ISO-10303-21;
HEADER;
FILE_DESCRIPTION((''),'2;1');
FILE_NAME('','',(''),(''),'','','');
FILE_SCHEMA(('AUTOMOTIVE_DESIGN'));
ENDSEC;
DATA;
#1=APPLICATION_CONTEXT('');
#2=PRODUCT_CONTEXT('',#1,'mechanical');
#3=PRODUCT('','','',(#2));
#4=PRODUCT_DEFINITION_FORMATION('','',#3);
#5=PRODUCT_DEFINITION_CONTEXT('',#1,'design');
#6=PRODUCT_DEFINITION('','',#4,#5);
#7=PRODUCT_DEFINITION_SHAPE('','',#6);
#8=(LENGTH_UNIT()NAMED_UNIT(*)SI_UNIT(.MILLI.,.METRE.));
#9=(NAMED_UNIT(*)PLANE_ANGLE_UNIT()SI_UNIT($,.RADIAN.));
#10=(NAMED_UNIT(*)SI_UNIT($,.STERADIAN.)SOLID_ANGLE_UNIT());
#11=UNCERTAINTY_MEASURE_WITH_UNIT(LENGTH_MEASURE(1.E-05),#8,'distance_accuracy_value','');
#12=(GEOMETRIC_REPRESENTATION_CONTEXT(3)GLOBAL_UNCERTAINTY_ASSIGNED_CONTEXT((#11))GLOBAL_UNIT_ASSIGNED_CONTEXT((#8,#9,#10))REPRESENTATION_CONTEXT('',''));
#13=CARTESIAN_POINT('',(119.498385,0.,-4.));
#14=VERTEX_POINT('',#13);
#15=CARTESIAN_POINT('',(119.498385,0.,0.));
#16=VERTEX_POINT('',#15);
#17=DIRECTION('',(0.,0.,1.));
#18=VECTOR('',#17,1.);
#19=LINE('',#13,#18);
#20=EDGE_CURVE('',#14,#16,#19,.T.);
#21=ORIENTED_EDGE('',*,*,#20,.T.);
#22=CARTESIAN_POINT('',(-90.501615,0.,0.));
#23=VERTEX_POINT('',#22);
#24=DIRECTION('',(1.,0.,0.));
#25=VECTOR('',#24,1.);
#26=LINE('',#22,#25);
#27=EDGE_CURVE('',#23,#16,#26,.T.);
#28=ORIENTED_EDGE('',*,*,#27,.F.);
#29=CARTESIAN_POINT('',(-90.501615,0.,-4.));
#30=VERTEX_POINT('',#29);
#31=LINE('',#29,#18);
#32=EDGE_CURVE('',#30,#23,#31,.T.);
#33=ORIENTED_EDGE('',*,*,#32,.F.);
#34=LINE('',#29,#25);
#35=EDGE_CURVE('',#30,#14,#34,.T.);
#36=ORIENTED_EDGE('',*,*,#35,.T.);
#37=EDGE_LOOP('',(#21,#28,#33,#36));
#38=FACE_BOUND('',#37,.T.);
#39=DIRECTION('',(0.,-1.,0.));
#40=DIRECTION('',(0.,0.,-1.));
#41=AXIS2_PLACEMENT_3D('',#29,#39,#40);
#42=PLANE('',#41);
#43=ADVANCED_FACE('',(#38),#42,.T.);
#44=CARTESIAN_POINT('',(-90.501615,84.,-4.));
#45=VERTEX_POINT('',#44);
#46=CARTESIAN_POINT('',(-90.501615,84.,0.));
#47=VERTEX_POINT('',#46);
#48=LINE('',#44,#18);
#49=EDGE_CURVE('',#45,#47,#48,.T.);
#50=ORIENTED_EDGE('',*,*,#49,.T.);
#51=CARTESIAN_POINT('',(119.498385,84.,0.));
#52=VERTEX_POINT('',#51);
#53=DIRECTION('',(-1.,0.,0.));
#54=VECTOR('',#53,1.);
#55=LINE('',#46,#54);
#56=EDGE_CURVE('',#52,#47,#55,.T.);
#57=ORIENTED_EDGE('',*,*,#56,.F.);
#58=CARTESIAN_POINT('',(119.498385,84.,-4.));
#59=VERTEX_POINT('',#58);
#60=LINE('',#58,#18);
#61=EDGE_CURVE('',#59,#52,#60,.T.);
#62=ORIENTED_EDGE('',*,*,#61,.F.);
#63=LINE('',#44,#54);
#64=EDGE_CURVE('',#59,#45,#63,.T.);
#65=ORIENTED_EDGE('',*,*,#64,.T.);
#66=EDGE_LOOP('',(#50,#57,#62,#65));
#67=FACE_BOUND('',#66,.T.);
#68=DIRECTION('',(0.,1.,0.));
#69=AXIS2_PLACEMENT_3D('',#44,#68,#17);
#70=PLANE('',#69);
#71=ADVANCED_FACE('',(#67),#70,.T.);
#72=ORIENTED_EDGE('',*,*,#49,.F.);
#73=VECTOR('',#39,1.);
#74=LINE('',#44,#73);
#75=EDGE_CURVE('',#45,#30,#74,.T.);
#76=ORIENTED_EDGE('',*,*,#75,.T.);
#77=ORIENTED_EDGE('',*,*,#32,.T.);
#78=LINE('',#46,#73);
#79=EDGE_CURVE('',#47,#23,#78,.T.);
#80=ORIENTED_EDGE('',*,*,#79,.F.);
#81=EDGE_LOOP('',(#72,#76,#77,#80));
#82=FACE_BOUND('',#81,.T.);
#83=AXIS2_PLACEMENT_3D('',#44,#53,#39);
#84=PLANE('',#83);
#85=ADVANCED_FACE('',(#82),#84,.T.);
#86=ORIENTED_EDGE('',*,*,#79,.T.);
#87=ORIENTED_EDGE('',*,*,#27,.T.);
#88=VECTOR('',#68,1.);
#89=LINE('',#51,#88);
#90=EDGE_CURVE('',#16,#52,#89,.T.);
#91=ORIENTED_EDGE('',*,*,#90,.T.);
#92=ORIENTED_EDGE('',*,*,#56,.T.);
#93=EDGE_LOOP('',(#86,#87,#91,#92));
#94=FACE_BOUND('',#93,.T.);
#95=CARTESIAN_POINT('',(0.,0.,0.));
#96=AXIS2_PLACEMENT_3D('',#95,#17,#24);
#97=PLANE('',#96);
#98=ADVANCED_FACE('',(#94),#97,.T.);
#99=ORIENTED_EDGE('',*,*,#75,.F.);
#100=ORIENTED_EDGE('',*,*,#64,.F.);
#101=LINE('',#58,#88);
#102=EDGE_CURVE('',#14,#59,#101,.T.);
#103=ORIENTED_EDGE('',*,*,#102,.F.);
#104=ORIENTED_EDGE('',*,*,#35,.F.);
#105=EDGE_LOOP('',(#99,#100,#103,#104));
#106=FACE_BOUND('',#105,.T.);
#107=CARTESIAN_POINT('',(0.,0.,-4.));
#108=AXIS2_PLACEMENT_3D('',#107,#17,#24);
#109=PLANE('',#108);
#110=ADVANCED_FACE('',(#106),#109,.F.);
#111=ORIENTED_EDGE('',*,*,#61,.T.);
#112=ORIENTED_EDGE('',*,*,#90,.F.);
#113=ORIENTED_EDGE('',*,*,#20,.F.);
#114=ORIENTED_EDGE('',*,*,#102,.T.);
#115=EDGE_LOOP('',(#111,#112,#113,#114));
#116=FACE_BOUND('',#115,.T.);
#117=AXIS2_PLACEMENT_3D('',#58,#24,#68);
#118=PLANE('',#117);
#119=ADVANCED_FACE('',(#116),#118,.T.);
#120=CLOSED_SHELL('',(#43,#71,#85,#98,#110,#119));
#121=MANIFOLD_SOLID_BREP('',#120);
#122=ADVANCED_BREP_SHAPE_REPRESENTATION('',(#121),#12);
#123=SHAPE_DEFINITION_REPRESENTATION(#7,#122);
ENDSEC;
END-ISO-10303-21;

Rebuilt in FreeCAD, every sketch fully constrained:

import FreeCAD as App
import Part
import Sketcher

V = App.Vector
Q = App.Units.Quantity

doc = App.newDocument("Part")
params = doc.addObject("Spreadsheet::Sheet", "Params")
for row, (alias, value) in enumerate([
    ("sketch1_width", "210 mm"),
    ("sketch1_height", "84 mm"),
    ("pad1_length", "4 mm"),
], start=1):
    params.set(f"A{row}", alias)
    params.set(f"B{row}", "=" + value)
    params.setAlias(f"B{row}", alias)

body = doc.addObject("PartDesign::Body", "Body")

# Sketch on XY plane
sketch1 = body.newObject("Sketcher::SketchObject", "Sketch")
sketch1.AttachmentSupport = (doc.getObject("XY_Plane"), [""])
sketch1.MapMode = "FlatFace"
sketch1.addGeometry([
    Part.LineSegment(V(-91, 84, 0), V(-91, 0, 0)),
    Part.LineSegment(V(-91, 0, 0), V(119, 0, 0)),
    Part.LineSegment(V(119, 0, 0), V(119, 84, 0)),
    Part.LineSegment(V(119, 84, 0), V(-91, 84, 0)),
], False)
sketch1.addConstraint([
    Sketcher.Constraint("Coincident", 0, 2, 1, 1),
    Sketcher.Constraint("Coincident", 1, 2, 2, 1),
    Sketcher.Constraint("Coincident", 2, 2, 3, 1),
    Sketcher.Constraint("Coincident", 3, 2, 0, 1),
    Sketcher.Constraint("Vertical", 0),
    Sketcher.Constraint("Horizontal", 1),
    Sketcher.Constraint("Vertical", 2),
    Sketcher.Constraint("Horizontal", 3),
    Sketcher.Constraint("PointOnObject", 0, 2, -1),
    Sketcher.Constraint("DistanceX", 1, 1, 1, 2, Q("210 mm")),
    Sketcher.Constraint("DistanceY", 0, 2, 0, 1, Q("84 mm")),
    Sketcher.Constraint("DistanceX", 0, 2, -1, 1, Q("90.501615 mm")),
])
sketch1.setExpression("Constraints[9]", "Params.sketch1_width")
sketch1.setExpression("Constraints[10]", "Params.sketch1_height")
pad1 = body.newObject("PartDesign::Pad", "Pad")
pad1.Profile = sketch1
pad1.setExpression("Length", "Params.pad1_length")
pad1.Reversed = True

doc.recompute()
